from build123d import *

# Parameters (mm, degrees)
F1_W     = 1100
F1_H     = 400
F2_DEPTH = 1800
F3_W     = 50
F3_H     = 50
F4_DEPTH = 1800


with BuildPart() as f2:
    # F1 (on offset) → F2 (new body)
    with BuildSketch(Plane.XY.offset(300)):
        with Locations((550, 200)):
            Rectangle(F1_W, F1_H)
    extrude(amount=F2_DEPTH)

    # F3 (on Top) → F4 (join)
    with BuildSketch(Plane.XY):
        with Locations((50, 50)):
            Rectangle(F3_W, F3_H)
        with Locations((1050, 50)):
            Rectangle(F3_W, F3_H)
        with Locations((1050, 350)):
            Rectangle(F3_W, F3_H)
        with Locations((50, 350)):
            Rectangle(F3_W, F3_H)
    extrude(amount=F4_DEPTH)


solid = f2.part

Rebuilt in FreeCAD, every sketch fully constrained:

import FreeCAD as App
import Part
import Sketcher

doc = App.newDocument("Part")
params = doc.addObject("Spreadsheet::Sheet", "Params")
for row, (alias, value) in enumerate([
    ("sketch1_width", "1100 mm"),
    ("sketch1_height", "400 mm"),
    ("pad1_length", "1800 mm"),
    ("sketch2_width", "50 mm"),
    ("pad2_length", "1800 mm"),
], start=1):
    params.set(f"A{row}", alias)
    params.set(f"B{row}", "=" + value)
    params.setAlias(f"B{row}", alias)

body = doc.addObject("PartDesign::Body", "Body")

sketch1 = body.newObject("Sketcher::SketchObject", "Sketch")
sketch1.AttachmentSupport = (doc.getObject("XY_Plane"), [""])
sketch1.MapMode = "FlatFace"
sketch1.AttachmentOffset = App.Placement(App.Vector(0, 0, 300), App.Rotation())
sketch1.addGeometry([
    Part.LineSegment(App.Vector(0, 400, 0), App.Vector(0, 0, 0)),
    Part.LineSegment(App.Vector(0, 0, 0), App.Vector(1100, 0, 0)),
    Part.LineSegment(App.Vector(1100, 0, 0), App.Vector(1100, 400, 0)),
    Part.LineSegment(App.Vector(1100, 400, 0), App.Vector(0, 400, 0)),
], False)
sketch1.addConstraint([
    Sketcher.Constraint("Coincident", 0, 2, 1, 1),
    Sketcher.Constraint("Coincident", 1, 2, 2, 1),
    Sketcher.Constraint("Coincident", 2, 2, 3, 1),
    Sketcher.Constraint("Coincident", 3, 2, 0, 1),
    Sketcher.Constraint("Vertical", 0),
    Sketcher.Constraint("Horizontal", 1),
    Sketcher.Constraint("Vertical", 2),
    Sketcher.Constraint("Horizontal", 3),
    Sketcher.Constraint("Coincident", 0, 2, -1, 1),
    Sketcher.Constraint("DistanceX", 1, 1, 1, 2, 1100.0),
    Sketcher.Constraint("DistanceY", 0, 2, 0, 1, 400.0),
])
sketch1.setExpression("Constraints[9]", "Params.sketch1_width")
sketch1.setExpression("Constraints[10]", "Params.sketch1_height")
pad1 = body.newObject("PartDesign::Pad", "Pad")
pad1.Profile = sketch1
pad1.setExpression("Length", "Params.pad1_length")

sketch2 = body.newObject("Sketcher::SketchObject", "Sketch001")
sketch2.AttachmentSupport = (doc.getObject("XY_Plane"), [""])
sketch2.MapMode = "FlatFace"
sketch2.addGeometry([
    Part.LineSegment(App.Vector(25, 75, 0), App.Vector(25, 25, 0)),
    Part.LineSegment(App.Vector(25, 25, 0), App.Vector(75, 25, 0)),
    Part.LineSegment(App.Vector(75, 25, 0), App.Vector(75, 75, 0)),
    Part.LineSegment(App.Vector(75, 75, 0), App.Vector(25, 75, 0)),
    Part.LineSegment(App.Vector(1025, 75, 0), App.Vector(1025, 25, 0)),
    Part.LineSegment(App.Vector(1025, 25, 0), App.Vector(1075, 25, 0)),
    Part.LineSegment(App.Vector(1075, 25, 0), App.Vector(1075, 75, 0)),
    Part.LineSegment(App.Vector(1075, 75, 0), App.Vector(1025, 75, 0)),
    Part.LineSegment(App.Vector(1025, 375, 0), App.Vector(1025, 325, 0)),
    Part.LineSegment(App.Vector(1025, 325, 0), App.Vector(1075, 325, 0)),
    Part.LineSegment(App.Vector(1075, 325, 0), App.Vector(1075, 375, 0)),
    Part.LineSegment(App.Vector(1075, 375, 0), App.Vector(1025, 375, 0)),
    Part.LineSegment(App.Vector(25, 375, 0), App.Vector(25, 325, 0)),
    Part.LineSegment(App.Vector(25, 325, 0), App.Vector(75, 325, 0)),
    Part.LineSegment(App.Vector(75, 325, 0), App.Vector(75, 375, 0)),
    Part.LineSegment(App.Vector(75, 375, 0), App.Vector(25, 375, 0)),
], False)
sketch2.addConstraint([
    Sketcher.Constraint("Coincident", 0, 2, 1, 1),
    Sketcher.Constraint("Coincident", 1, 2, 2, 1),
    Sketcher.Constraint("Coincident", 2, 2, 3, 1),
    Sketcher.Constraint("Coincident", 3, 2, 0, 1),
    Sketcher.Constraint("Coincident", 4, 2, 5, 1),
    Sketcher.Constraint("Coincident", 5, 2, 6, 1),
    Sketcher.Constraint("Coincident", 6, 2, 7, 1),
    Sketcher.Constraint("Coincident", 7, 2, 4, 1),
    Sketcher.Constraint("Coincident", 8, 2, 9, 1),
    Sketcher.Constraint("Coincident", 9, 2, 10, 1),
    Sketcher.Constraint("Coincident", 10, 2, 11, 1),
    Sketcher.Constraint("Coincident", 11, 2, 8, 1),
    Sketcher.Constraint("Coincident", 12, 2, 13, 1),
    Sketcher.Constraint("Coincident", 13, 2, 14, 1),
    Sketcher.Constraint("Coincident", 14, 2, 15, 1),
    Sketcher.Constraint("Coincident", 15, 2, 12, 1),
    Sketcher.Constraint("Vertical", 0),
    Sketcher.Constraint("Horizontal", 1),
    Sketcher.Constraint("Vertical", 2),
    Sketcher.Constraint("Horizontal", 3),
    Sketcher.Constraint("Vertical", 4),
    Sketcher.Constraint("Horizontal", 5),
    Sketcher.Constraint("Vertical", 6),
    Sketcher.Constraint("Horizontal", 7),
    Sketcher.Constraint("Vertical", 8),
    Sketcher.Constraint("Horizontal", 9),
    Sketcher.Constraint("Vertical", 10),
    Sketcher.Constraint("Horizontal", 11),
    Sketcher.Constraint("Vertical", 12),
    Sketcher.Constraint("Horizontal", 13),
    Sketcher.Constraint("Vertical", 14),
    Sketcher.Constraint("Horizontal", 15),
    Sketcher.Constraint("Horizontal", 1, 2, 4, 2),
    Sketcher.Constraint("Horizontal", 3, 2, 6, 2),
    Sketcher.Constraint("Horizontal", 9, 2, 12, 2),
    Sketcher.Constraint("Horizontal", 11, 2, 14, 2),
    Sketcher.Constraint("Vertical", 7, 2, 8, 2),
    Sketcher.Constraint("Vertical", 6, 2, 9, 2),
    Sketcher.Constraint("Vertical", 3, 2, 12, 2),
    Sketcher.Constraint("Vertical", 2, 2, 13, 2),
    Sketcher.Constraint("Equal", 3, 5),
    Sketcher.Constraint("Equal", 15, 0),
    Sketcher.Constraint("Equal", 6, 8),
    Sketcher.Constraint("DistanceX", 1, 1, 1, 2, 50.0),
    Sketcher.Constraint("DistanceX", -1, 1, 0, 2, 25.0),
    Sketcher.Constraint("DistanceY", -1, 1, 0, 2, 25.0),
    Sketcher.Constraint("DistanceX", -1, 1, 4, 2, 1025.0),
    Sketcher.Constraint("DistanceY", -1, 1, 8, 2, 325.0),
])
sketch2.setExpression("Constraints[43]", "Params.sketch2_width")
pad2 = body.newObject("PartDesign::Pad", "Pad001")
pad2.Profile = sketch2
pad2.setExpression("Length", "Params.pad2_length")

doc.recompute()
